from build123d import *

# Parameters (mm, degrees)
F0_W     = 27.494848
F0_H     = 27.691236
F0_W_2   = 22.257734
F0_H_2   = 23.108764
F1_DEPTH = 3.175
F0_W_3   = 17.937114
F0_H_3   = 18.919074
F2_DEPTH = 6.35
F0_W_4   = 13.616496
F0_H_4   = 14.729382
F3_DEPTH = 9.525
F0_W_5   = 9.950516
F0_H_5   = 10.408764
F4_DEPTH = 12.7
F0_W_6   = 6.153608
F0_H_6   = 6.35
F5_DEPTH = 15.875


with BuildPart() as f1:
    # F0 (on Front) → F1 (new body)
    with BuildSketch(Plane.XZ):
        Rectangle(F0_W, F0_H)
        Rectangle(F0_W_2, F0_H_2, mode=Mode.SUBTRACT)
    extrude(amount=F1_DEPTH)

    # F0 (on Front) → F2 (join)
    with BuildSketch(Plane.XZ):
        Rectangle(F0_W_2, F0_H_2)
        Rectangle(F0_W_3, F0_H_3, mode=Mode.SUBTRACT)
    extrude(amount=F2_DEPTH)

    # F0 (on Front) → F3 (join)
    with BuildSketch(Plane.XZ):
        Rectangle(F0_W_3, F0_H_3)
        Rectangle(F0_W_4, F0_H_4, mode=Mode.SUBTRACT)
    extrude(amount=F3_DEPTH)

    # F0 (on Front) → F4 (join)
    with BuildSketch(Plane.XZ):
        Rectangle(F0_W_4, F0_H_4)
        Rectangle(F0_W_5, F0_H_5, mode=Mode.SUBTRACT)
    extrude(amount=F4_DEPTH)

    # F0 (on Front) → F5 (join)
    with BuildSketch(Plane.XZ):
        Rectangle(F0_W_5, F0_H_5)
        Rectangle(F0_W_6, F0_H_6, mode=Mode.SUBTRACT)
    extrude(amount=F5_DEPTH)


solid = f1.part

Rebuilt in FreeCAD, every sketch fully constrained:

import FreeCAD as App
import Part
import Sketcher
from FreeCAD import Vector
Q = App.Units.Quantity

doc = App.newDocument("Part")
body = doc.addObject("PartDesign::Body", "Body")

# Sketch on XZ plane
sketch1 = body.newObject("Sketcher::SketchObject", "Sketch")
sketch1.AttachmentSupport = (doc.getObject("XZ_Plane"), [""])
sketch1.MapMode = "FlatFace"
sketch1.addGeometry([
    Part.LineSegment(Vector(-14, 14, 0), Vector(-14, -14, 0)),  # 0
    Part.LineSegment(Vector(-14, -14, 0), Vector(14, -14, 0)),  # 1
    Part.LineSegment(Vector(14, -14, 0), Vector(14, 14, 0)),  # 2
    Part.LineSegment(Vector(14, 14, 0), Vector(-14, 14, 0)),  # 3
    Part.LineSegment(Vector(11, -12, 0), Vector(-11, -12, 0)),  # 4
    Part.LineSegment(Vector(-11, -12, 0), Vector(-11, 12, 0)),  # 5
    Part.LineSegment(Vector(-11, 12, 0), Vector(11, 12, 0)),  # 6
    Part.LineSegment(Vector(11, 12, 0), Vector(11, -12, 0)),  # 7
], False)
sketch1.addConstraint([
    Sketcher.Constraint("Coincident", 0, 2, 1, 1),
    Sketcher.Constraint("Coincident", 1, 2, 2, 1),
    Sketcher.Constraint("Coincident", 2, 2, 3, 1),
    Sketcher.Constraint("Coincident", 3, 2, 0, 1),
    Sketcher.Constraint("Coincident", 4, 2, 5, 1),
    Sketcher.Constraint("Coincident", 5, 2, 6, 1),
    Sketcher.Constraint("Coincident", 6, 2, 7, 1),
    Sketcher.Constraint("Coincident", 7, 2, 4, 1),
    Sketcher.Constraint("Vertical", 0),
    Sketcher.Constraint("Horizontal", 1),
    Sketcher.Constraint("Vertical", 2),
    Sketcher.Constraint("Horizontal", 3),
    Sketcher.Constraint("Horizontal", 4),
    Sketcher.Constraint("Vertical", 5),
    Sketcher.Constraint("Horizontal", 6),
    Sketcher.Constraint("Vertical", 7),
    Sketcher.Constraint("Symmetric", 0, 2, 2, 2, -1, 1),
    Sketcher.Constraint("Symmetric", 4, 2, 6, 2, -1, 1),
    Sketcher.Constraint("DistanceY", 4, 2, 3, 2, Q("1 in")),
    Sketcher.Constraint("DistanceX", 1, 1, 1, 2, Q("27.494848 mm")),
    Sketcher.Constraint("DistanceX", 4, 2, 4, 1, Q("22.257734 mm")),
    Sketcher.Constraint("DistanceY", 0, 2, 0, 1, Q("27.691236 mm")),
])
pad1 = body.newObject("PartDesign::Pad", "Pad")
pad1.Profile = sketch1
pad1.Length = Q("0.125 in")

# Sketch on XZ plane
sketch2 = body.newObject("Sketcher::SketchObject", "Sketch001")
sketch2.AttachmentSupport = (doc.getObject("XZ_Plane"), [""])
sketch2.MapMode = "FlatFace"
sketch2.addGeometry([
    Part.LineSegment(Vector(-11, 12, 0), Vector(-11, -12, 0)),  # 0
    Part.LineSegment(Vector(-11, -12, 0), Vector(11, -12, 0)),  # 1
    Part.LineSegment(Vector(11, -12, 0), Vector(11, 12, 0)),  # 2
    Part.LineSegment(Vector(11, 12, 0), Vector(-11, 12, 0)),  # 3
    Part.LineSegment(Vector(9, -9, 0), Vector(-9, -9, 0)),  # 4
    Part.LineSegment(Vector(-9, -9, 0), Vector(-9, 9, 0)),  # 5
    Part.LineSegment(Vector(-9, 9, 0), Vector(9, 9, 0)),  # 6
    Part.LineSegment(Vector(9, 9, 0), Vector(9, -9, 0)),  # 7
], False)
sketch2.addConstraint([
    Sketcher.Constraint("Coincident", 0, 2, 1, 1),
    Sketcher.Constraint("Coincident", 1, 2, 2, 1),
    Sketcher.Constraint("Coincident", 2, 2, 3, 1),
    Sketcher.Constraint("Coincident", 3, 2, 0, 1),
    Sketcher.Constraint("Coincident", 4, 2, 5, 1),
    Sketcher.Constraint("Coincident", 5, 2, 6, 1),
    Sketcher.Constraint("Coincident", 6, 2, 7, 1),
    Sketcher.Constraint("Coincident", 7, 2, 4, 1),
    Sketcher.Constraint("Vertical", 0),
    Sketcher.Constraint("Horizontal", 1),
    Sketcher.Constraint("Vertical", 2),
    Sketcher.Constraint("Horizontal", 3),
    Sketcher.Constraint("Horizontal", 4),
    Sketcher.Constraint("Vertical", 5),
    Sketcher.Constraint("Horizontal", 6),
    Sketcher.Constraint("Vertical", 7),
    Sketcher.Constraint("Symmetric", 0, 2, 2, 2, -1, 1),
    Sketcher.Constraint("Symmetric", 4, 2, 6, 2, -1, 1),
    Sketcher.Constraint("DistanceX", 1, 1, 1, 2, Q("22.257734 mm")),
    Sketcher.Constraint("DistanceX", 4, 2, 4, 1, Q("17.937114 mm")),
    Sketcher.Constraint("DistanceY", 0, 2, 0, 1, Q("23.108764 mm")),
    Sketcher.Constraint("DistanceY", 5, 1, 5, 2, Q("18.919074 mm")),
])
pad2 = body.newObject("PartDesign::Pad", "Pad001")
pad2.Profile = sketch2
pad2.Length = Q("0.25 in")

# Sketch on XZ plane
sketch3 = body.newObject("Sketcher::SketchObject", "Sketch002")
sketch3.AttachmentSupport = (doc.getObject("XZ_Plane"), [""])
sketch3.MapMode = "FlatFace"
sketch3.addGeometry([
    Part.LineSegment(Vector(-9, 9, 0), Vector(-9, -9, 0)),  # 0
    Part.LineSegment(Vector(-9, -9, 0), Vector(9, -9, 0)),  # 1
    Part.LineSegment(Vector(9, -9, 0), Vector(9, 9, 0)),  # 2
    Part.LineSegment(Vector(9, 9, 0), Vector(-9, 9, 0)),  # 3
    Part.LineSegment(Vector(7, -7, 0), Vector(-7, -7, 0)),  # 4
    Part.LineSegment(Vector(-7, -7, 0), Vector(-7, 7, 0)),  # 5
    Part.LineSegment(Vector(-7, 7, 0), Vector(7, 7, 0)),  # 6
    Part.LineSegment(Vector(7, 7, 0), Vector(7, -7, 0)),  # 7
], False)
sketch3.addConstraint([
    Sketcher.Constraint("Coincident", 0, 2, 1, 1),
    Sketcher.Constraint("Coincident", 1, 2, 2, 1),
    Sketcher.Constraint("Coincident", 2, 2, 3, 1),
    Sketcher.Constraint("Coincident", 3, 2, 0, 1),
    Sketcher.Constraint("Coincident", 4, 2, 5, 1),
    Sketcher.Constraint("Coincident", 5, 2, 6, 1),
    Sketcher.Constraint("Coincident", 6, 2, 7, 1),
    Sketcher.Constraint("Coincident", 7, 2, 4, 1),
    Sketcher.Constraint("Vertical", 0),
    Sketcher.Constraint("Horizontal", 1),
    Sketcher.Constraint("Vertical", 2),
    Sketcher.Constraint("Horizontal", 3),
    Sketcher.Constraint("Horizontal", 4),
    Sketcher.Constraint("Vertical", 5),
    Sketcher.Constraint("Horizontal", 6),
    Sketcher.Constraint("Vertical", 7),
    Sketcher.Constraint("Symmetric", 0, 2, 2, 2, -1, 1),
    Sketcher.Constraint("Symmetric", 4, 2, 6, 2, -1, 1),
    Sketcher.Constraint("DistanceY", 5, 1, 5, 2, Q("14.729382 mm")),
    Sketcher.Constraint("DistanceX", 1, 1, 1, 2, Q("17.937114 mm")),
    Sketcher.Constraint("DistanceX", 4, 2, 4, 1, Q("13.616496 mm")),
    Sketcher.Constraint("DistanceY", 0, 2, 0, 1, Q("18.919074 mm")),
])
pad3 = body.newObject("PartDesign::Pad", "Pad002")
pad3.Profile = sketch3
pad3.Length = Q("0.375 in")

# Sketch on XZ plane
sketch4 = body.newObject("Sketcher::SketchObject", "Sketch003")
sketch4.AttachmentSupport = (doc.getObject("XZ_Plane"), [""])
sketch4.MapMode = "FlatFace"
sketch4.addGeometry([
    Part.LineSegment(Vector(-7, 7, 0), Vector(-7, -7, 0)),  # 0
    Part.LineSegment(Vector(-7, -7, 0), Vector(7, -7, 0)),  # 1
    Part.LineSegment(Vector(7, -7, 0), Vector(7, 7, 0)),  # 2
    Part.LineSegment(Vector(7, 7, 0), Vector(-7, 7, 0)),  # 3
    Part.LineSegment(Vector(5, -5, 0), Vector(-5, -5, 0)),  # 4
    Part.LineSegment(Vector(-5, -5, 0), Vector(-5, 5, 0)),  # 5
    Part.LineSegment(Vector(-5, 5, 0), Vector(5, 5, 0)),  # 6
    Part.LineSegment(Vector(5, 5, 0), Vector(5, -5, 0)),  # 7
], False)
sketch4.addConstraint([
    Sketcher.Constraint("Coincident", 0, 2, 1, 1),
    Sketcher.Constraint("Coincident", 1, 2, 2, 1),
    Sketcher.Constraint("Coincident", 2, 2, 3, 1),
    Sketcher.Constraint("Coincident", 3, 2, 0, 1),
    Sketcher.Constraint("Coincident", 4, 2, 5, 1),
    Sketcher.Constraint("Coincident", 5, 2, 6, 1),
    Sketcher.Constraint("Coincident", 6, 2, 7, 1),
    Sketcher.Constraint("Coincident", 7, 2, 4, 1),
    Sketcher.Constraint("Vertical", 0),
    Sketcher.Constraint("Horizontal", 1),
    Sketcher.Constraint("Vertical", 2),
    Sketcher.Constraint("Horizontal", 3),
    Sketcher.Constraint("Horizontal", 4),
    Sketcher.Constraint("Vertical", 5),
    Sketcher.Constraint("Horizontal", 6),
    Sketcher.Constraint("Vertical", 7),
    Sketcher.Constraint("Symmetric", 0, 2, 2, 2, -1, 1),
    Sketcher.Constraint("Symmetric", 4, 2, 6, 2, -1, 1),
    Sketcher.Constraint("DistanceY", 0, 2, 0, 1, Q("14.729382 mm")),
    Sketcher.Constraint("DistanceX", 1, 1, 1, 2, Q("13.616496 mm")),
    Sketcher.Constraint("DistanceX", 4, 2, 4, 1, Q("9.950516 mm")),
    Sketcher.Constraint("DistanceY", 5, 1, 5, 2, Q("10.408764 mm")),
])
pad4 = body.newObject("PartDesign::Pad", "Pad003")
pad4.Profile = sketch4
pad4.Length = Q("0.5 in")

# Sketch on XZ plane
sketch5 = body.newObject("Sketcher::SketchObject", "Sketch004")
sketch5.AttachmentSupport = (doc.getObject("XZ_Plane"), [""])
sketch5.MapMode = "FlatFace"
sketch5.addGeometry([
    Part.LineSegment(Vector(-5, 5, 0), Vector(-5, -5, 0)),  # 0
    Part.LineSegment(Vector(-5, -5, 0), Vector(5, -5, 0)),  # 1
    Part.LineSegment(Vector(5, -5, 0), Vector(5, 5, 0)),  # 2
    Part.LineSegment(Vector(5, 5, 0), Vector(-5, 5, 0)),  # 3
    Part.LineSegment(Vector(3, -3, 0), Vector(-3, -3, 0)),  # 4
    Part.LineSegment(Vector(-3, -3, 0), Vector(-3, 3, 0)),  # 5
    Part.LineSegment(Vector(-3, 3, 0), Vector(3, 3, 0)),  # 6
    Part.LineSegment(Vector(3, 3, 0), Vector(3, -3, 0)),  # 7
], False)
sketch5.addConstraint([
    Sketcher.Constraint("Coincident", 0, 2, 1, 1),
    Sketcher.Constraint("Coincident", 1, 2, 2, 1),
    Sketcher.Constraint("Coincident", 2, 2, 3, 1),
    Sketcher.Constraint("Coincident", 3, 2, 0, 1),
    Sketcher.Constraint("Coincident", 4, 2, 5, 1),
    Sketcher.Constraint("Coincident", 5, 2, 6, 1),
    Sketcher.Constraint("Coincident", 6, 2, 7, 1),
    Sketcher.Constraint("Coincident", 7, 2, 4, 1),
    Sketcher.Constraint("Vertical", 0),
    Sketcher.Constraint("Horizontal", 1),
    Sketcher.Constraint("Vertical", 2),
    Sketcher.Constraint("Horizontal", 3),
    Sketcher.Constraint("Horizontal", 4),
    Sketcher.Constraint("Vertical", 5),
    Sketcher.Constraint("Horizontal", 6),
    Sketcher.Constraint("Vertical", 7),
    Sketcher.Constraint("Symmetric", 0, 2, 2, 2, -1, 1),
    Sketcher.Constraint("Symmetric", 4, 2, 6, 2, -1, 1),
    Sketcher.Constraint("DistanceY", 5, 1, 5, 2, Q("0.25 in")),
    Sketcher.Constraint("DistanceX", 4, 2, 4, 1, Q("6.153608 mm")),
    Sketcher.Constraint("DistanceX", 1, 1, 1, 2, Q("9.950516 mm")),
    Sketcher.Constraint("DistanceY", 0, 2, 0, 1, Q("10.408764 mm")),
])
pad5 = body.newObject("PartDesign::Pad", "Pad004")
pad5.Profile = sketch5
pad5.Length = Q("0.625 in")

doc.recompute()
